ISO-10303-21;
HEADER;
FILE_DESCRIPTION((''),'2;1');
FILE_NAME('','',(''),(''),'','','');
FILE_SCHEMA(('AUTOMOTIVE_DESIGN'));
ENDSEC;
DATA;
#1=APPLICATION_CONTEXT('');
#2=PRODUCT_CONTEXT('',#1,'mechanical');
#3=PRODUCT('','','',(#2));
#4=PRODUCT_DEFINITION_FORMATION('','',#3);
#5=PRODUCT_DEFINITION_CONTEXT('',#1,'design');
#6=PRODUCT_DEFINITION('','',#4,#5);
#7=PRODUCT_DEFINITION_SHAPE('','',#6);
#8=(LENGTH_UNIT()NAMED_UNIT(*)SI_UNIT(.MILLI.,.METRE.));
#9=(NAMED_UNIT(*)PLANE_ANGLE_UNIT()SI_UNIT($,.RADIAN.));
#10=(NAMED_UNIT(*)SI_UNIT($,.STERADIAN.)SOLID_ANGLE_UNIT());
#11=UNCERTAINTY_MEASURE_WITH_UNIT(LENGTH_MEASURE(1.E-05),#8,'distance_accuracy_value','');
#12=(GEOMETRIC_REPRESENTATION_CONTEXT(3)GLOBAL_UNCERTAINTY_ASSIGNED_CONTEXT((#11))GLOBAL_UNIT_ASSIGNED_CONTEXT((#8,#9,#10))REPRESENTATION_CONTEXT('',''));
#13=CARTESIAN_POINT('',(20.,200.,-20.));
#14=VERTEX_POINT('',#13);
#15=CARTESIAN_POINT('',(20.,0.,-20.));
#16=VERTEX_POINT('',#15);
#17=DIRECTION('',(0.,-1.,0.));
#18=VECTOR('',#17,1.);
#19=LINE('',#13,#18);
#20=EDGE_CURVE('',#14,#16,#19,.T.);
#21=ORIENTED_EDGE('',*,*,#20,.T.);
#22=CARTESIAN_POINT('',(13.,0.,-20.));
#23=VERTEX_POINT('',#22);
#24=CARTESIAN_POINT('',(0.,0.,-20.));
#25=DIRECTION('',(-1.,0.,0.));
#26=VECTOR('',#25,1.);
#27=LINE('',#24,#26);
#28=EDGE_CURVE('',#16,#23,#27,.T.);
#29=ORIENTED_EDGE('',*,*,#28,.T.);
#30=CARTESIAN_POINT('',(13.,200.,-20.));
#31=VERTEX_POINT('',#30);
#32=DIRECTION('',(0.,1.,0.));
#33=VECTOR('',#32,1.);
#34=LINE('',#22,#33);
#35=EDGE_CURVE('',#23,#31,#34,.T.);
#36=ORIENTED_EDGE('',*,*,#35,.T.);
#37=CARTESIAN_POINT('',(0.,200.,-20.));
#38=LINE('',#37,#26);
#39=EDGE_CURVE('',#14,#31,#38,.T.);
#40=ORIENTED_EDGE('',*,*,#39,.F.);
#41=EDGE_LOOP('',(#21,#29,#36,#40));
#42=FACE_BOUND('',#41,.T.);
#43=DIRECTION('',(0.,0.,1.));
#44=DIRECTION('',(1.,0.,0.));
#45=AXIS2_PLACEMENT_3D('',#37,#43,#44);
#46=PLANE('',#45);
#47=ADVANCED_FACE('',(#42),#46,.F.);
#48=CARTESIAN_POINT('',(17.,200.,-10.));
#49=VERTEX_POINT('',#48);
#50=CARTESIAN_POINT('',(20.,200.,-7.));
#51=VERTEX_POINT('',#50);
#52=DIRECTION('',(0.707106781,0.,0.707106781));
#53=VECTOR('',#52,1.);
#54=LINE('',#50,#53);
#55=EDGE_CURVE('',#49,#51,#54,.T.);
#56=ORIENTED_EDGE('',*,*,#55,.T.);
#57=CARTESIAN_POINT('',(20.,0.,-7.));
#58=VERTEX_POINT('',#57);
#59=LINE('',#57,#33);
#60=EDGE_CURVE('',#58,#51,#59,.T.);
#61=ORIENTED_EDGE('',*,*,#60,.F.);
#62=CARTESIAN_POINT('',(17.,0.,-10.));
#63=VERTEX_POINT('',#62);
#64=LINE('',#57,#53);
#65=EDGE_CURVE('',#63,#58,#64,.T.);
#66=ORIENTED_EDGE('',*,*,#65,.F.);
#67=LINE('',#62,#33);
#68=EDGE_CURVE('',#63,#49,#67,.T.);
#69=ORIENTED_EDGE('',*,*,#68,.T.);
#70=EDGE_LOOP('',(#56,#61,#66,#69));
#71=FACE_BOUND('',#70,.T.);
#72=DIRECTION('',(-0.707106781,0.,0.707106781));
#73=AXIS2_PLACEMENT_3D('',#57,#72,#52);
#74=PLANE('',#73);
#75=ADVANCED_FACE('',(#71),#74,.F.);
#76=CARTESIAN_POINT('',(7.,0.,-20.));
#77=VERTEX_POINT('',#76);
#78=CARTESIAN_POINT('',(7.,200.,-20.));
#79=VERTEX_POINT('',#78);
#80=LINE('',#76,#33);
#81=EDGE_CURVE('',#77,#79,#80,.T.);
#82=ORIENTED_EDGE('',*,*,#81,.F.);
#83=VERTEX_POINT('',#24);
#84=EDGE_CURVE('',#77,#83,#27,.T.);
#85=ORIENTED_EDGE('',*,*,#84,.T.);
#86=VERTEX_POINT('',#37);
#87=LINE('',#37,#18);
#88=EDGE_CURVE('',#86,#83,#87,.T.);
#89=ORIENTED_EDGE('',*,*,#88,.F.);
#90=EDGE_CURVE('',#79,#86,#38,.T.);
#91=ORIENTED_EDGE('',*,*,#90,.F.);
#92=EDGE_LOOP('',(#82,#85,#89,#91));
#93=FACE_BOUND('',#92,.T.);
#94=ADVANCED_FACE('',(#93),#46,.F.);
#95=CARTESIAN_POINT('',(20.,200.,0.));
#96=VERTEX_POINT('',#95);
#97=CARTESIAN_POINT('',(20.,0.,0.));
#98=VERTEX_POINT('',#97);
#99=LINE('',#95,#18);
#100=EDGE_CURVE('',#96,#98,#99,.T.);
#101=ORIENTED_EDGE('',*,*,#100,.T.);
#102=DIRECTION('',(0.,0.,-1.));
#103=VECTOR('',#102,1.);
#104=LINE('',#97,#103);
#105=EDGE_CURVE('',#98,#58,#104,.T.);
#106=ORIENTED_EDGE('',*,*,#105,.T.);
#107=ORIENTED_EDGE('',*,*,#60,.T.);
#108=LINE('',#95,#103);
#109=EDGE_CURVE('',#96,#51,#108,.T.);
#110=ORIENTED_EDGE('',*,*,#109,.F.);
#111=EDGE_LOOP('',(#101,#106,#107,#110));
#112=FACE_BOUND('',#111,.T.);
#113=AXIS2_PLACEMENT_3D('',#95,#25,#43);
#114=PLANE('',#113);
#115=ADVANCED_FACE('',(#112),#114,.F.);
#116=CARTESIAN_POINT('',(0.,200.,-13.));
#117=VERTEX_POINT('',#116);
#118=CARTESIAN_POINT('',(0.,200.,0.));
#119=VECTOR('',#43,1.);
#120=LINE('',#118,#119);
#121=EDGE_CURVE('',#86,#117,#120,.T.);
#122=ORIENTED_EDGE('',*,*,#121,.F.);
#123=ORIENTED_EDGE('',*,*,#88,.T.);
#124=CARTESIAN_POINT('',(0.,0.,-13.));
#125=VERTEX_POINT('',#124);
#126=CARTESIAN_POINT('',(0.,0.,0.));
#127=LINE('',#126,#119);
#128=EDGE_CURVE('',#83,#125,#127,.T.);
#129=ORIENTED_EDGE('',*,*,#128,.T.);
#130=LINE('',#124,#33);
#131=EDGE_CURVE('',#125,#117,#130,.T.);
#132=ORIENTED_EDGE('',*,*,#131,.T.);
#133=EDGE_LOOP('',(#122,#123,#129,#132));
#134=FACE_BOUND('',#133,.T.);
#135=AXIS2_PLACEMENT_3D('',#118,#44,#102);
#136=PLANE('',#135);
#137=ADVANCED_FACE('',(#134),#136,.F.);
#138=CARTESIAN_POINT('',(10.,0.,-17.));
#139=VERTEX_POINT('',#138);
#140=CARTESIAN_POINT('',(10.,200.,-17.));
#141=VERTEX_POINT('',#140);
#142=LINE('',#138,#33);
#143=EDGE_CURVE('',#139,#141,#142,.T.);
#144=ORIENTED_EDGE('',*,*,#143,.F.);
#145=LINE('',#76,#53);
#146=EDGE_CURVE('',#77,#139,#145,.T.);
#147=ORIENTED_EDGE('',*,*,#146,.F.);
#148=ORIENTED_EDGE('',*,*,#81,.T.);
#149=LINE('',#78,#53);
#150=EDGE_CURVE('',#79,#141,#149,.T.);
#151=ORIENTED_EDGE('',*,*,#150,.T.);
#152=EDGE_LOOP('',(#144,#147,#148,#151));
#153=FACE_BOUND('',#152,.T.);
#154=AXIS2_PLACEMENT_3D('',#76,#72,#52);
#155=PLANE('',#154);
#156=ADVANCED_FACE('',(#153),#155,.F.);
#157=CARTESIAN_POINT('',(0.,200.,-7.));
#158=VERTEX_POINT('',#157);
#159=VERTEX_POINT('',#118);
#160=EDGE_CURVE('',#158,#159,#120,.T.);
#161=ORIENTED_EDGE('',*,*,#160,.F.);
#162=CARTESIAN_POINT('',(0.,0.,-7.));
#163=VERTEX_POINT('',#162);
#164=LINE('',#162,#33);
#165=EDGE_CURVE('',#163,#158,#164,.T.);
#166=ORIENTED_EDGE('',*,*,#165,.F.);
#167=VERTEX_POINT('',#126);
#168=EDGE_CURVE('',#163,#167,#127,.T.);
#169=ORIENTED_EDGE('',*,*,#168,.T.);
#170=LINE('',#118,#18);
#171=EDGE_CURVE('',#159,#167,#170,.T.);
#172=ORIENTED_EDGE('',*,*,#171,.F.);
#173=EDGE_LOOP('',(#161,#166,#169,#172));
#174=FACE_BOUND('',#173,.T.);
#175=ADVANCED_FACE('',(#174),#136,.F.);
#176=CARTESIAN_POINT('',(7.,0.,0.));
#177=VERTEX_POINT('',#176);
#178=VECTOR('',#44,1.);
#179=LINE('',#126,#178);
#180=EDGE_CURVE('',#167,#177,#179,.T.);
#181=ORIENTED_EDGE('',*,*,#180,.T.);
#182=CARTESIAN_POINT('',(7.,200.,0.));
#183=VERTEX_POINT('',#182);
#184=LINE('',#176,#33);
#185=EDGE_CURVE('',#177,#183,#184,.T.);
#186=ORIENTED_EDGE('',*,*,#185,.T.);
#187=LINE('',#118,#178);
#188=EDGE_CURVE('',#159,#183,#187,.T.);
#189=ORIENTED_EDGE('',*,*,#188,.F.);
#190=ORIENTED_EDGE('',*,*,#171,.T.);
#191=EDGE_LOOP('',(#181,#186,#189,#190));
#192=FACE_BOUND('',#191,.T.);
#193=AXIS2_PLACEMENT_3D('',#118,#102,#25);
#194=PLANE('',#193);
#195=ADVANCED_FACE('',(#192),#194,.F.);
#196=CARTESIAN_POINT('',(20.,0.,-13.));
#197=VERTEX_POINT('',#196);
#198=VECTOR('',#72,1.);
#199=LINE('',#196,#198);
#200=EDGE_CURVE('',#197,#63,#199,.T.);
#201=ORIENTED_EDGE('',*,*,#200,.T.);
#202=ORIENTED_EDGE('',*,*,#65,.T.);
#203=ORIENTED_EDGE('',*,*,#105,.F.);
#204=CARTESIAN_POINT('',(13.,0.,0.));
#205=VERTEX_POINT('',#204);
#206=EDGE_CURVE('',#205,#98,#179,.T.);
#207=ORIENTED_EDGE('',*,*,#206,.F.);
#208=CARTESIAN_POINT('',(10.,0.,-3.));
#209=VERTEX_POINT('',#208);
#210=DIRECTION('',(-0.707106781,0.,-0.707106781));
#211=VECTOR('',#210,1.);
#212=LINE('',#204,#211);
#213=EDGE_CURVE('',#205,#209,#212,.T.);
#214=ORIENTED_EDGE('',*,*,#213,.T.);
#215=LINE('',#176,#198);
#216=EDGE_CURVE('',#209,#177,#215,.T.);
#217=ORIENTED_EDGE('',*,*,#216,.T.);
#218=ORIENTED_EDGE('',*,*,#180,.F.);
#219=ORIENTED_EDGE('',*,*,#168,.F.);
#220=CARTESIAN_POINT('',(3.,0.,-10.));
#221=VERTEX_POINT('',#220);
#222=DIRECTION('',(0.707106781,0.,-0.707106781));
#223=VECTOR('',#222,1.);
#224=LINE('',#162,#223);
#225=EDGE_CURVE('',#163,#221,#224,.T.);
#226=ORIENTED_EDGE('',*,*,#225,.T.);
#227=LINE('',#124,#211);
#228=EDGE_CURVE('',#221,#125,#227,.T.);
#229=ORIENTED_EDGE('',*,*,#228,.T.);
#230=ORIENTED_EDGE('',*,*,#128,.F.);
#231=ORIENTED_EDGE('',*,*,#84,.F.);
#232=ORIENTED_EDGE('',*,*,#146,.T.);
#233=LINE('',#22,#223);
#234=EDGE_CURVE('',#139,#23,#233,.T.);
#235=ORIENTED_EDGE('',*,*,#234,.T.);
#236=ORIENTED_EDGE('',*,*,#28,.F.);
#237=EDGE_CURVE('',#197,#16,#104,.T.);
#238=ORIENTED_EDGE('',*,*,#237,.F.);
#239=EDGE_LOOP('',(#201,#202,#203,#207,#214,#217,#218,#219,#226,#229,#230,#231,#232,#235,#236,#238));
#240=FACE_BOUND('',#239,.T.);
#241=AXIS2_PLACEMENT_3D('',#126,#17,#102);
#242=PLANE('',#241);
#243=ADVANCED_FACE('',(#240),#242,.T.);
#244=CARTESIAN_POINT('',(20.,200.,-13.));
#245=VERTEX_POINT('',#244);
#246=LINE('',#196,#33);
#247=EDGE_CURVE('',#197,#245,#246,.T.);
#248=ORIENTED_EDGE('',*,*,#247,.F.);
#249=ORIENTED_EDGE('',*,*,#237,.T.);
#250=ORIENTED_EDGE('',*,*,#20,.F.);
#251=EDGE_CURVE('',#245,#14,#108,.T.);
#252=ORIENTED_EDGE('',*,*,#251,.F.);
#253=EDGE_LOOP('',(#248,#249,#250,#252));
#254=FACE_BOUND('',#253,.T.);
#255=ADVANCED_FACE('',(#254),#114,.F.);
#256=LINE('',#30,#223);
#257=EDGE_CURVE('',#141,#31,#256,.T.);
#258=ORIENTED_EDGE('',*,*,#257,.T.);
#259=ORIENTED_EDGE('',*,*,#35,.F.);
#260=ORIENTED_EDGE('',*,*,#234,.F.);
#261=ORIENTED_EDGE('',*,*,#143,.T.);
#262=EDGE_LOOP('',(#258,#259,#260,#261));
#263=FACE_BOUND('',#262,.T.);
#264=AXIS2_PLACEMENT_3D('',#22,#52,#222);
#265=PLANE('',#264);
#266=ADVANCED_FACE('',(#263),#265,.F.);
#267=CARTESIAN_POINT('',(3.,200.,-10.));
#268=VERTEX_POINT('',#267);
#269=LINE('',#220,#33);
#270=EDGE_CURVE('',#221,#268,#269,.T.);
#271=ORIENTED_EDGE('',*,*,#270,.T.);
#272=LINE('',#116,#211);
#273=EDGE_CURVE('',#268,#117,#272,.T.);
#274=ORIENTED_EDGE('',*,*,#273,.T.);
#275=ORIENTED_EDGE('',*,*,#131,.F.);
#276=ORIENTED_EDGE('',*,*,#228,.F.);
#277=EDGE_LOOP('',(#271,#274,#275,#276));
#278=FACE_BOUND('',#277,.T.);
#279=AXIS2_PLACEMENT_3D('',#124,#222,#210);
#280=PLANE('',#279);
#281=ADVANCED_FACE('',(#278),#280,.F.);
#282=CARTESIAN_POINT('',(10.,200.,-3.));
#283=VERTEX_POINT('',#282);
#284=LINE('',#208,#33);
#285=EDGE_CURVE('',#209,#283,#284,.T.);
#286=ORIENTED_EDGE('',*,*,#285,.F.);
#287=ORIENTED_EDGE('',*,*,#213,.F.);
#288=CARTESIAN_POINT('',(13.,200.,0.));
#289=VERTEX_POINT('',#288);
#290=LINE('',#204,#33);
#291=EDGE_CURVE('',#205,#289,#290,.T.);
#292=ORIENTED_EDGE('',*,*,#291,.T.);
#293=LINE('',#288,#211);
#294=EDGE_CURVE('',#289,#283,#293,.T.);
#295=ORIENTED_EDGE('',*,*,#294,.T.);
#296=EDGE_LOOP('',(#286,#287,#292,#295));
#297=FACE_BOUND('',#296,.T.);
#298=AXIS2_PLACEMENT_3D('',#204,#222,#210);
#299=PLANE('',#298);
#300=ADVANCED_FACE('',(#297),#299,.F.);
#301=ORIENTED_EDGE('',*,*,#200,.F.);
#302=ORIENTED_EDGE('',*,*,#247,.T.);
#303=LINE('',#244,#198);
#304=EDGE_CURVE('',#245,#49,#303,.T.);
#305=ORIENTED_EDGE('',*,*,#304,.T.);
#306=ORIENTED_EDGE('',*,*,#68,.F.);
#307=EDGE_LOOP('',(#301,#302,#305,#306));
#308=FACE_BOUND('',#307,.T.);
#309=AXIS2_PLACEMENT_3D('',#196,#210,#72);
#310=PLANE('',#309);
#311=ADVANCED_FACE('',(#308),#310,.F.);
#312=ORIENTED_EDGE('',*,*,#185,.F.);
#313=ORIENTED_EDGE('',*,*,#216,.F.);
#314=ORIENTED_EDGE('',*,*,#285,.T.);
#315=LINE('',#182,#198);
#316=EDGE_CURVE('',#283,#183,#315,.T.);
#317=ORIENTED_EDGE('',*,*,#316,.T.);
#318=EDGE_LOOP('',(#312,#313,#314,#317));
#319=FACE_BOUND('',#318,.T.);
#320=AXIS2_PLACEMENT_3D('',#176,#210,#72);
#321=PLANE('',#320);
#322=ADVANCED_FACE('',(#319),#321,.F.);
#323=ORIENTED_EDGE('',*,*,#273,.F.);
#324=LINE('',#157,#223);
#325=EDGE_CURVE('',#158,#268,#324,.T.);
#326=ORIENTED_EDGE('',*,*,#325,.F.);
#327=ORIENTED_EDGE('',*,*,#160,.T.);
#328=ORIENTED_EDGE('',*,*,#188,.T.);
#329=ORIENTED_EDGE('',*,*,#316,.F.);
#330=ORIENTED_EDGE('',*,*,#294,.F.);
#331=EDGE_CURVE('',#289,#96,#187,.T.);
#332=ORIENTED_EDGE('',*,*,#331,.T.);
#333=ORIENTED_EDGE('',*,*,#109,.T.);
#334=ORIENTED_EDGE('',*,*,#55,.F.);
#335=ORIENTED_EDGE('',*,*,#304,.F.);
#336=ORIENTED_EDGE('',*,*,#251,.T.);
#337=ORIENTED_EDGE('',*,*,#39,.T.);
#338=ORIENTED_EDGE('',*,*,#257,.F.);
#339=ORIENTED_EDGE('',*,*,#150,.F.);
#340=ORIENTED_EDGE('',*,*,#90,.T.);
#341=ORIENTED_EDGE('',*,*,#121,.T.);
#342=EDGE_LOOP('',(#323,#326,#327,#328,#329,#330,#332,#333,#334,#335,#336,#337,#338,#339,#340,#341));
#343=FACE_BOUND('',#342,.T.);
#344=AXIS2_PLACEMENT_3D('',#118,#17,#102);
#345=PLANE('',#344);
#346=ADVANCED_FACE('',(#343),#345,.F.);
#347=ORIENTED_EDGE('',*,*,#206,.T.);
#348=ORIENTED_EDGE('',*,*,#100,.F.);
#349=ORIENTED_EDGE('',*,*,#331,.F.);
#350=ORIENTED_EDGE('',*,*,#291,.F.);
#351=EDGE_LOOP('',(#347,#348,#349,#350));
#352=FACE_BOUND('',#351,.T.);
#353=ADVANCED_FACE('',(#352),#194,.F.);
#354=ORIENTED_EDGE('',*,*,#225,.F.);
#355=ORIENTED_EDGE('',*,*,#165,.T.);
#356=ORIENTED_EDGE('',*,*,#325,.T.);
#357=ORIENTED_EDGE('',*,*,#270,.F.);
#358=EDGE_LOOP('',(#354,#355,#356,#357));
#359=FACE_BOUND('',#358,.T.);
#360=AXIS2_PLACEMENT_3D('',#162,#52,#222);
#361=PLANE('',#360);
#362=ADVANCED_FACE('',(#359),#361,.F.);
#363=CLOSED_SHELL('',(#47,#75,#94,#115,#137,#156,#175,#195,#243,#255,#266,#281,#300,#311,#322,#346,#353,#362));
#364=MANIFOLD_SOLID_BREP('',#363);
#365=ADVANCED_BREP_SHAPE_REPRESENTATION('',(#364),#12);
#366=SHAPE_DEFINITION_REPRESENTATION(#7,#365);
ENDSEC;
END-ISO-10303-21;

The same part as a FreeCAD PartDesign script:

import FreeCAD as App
import Part
import Sketcher

V = App.Vector


def add_polygon(sketch, points):
    """Adds a closed chain of lines whose ends are joined by coincident constraints."""
    first, n = sketch.GeometryCount, len(points)
    for a, b in zip(points, points[1:] + points[:1]):
        sketch.addGeometry(Part.LineSegment(App.Vector(*a, 0), App.Vector(*b, 0)), False)
    for i in range(n):
        sketch.addConstraint(Sketcher.Constraint("Coincident", first + i, 2, first + (i + 1) % n, 1))

doc = App.newDocument("Part")
body = doc.addObject("PartDesign::Body", "Body")

# Sketch on XZ plane
sketch1 = body.newObject("Sketcher::SketchObject", "Sketch")
sketch1.AttachmentSupport = (doc.getObject("XZ_Plane"), [""])
sketch1.MapMode = "FlatFace"
add_polygon(sketch1, [(0, -20), (0, 0), (20, 0), (20, -20)])  # lines 0-3
sketch1.addConstraint([
    Sketcher.Constraint("Vertical", 0),
    Sketcher.Constraint("Horizontal", 1),
    Sketcher.Constraint("Vertical", 2),
    Sketcher.Constraint("Horizontal", 3),
    Sketcher.Constraint("Coincident", 0, 2, -1, 1),
    Sketcher.Constraint("Equal", 3, 0),
    Sketcher.Constraint("DistanceX", 1, 1, 1, 2, 20.0),
])
pad1 = body.newObject("PartDesign::Pad", "Pad")
pad1.Profile = sketch1
pad1.Length = 200
pad1.Reversed = True

# Sketch on XZ plane
sketch2 = body.newObject("Sketcher::SketchObject", "Sketch001")
sketch2.AttachmentSupport = (doc.getObject("XZ_Plane"), [""])
sketch2.MapMode = "FlatFace"
sketch2.AttachmentOffset = App.Placement(V(0, 0, -200), App.Rotation())
add_polygon(sketch2, [(7, -20), (10, -17), (13, -20)])  # lines 0-2
add_polygon(sketch2, [(20, -13), (17, -10), (20, -7)])  # lines 3-5
add_polygon(sketch2, [(0, -13), (0, -7), (3, -10)])  # lines 6-8
add_polygon(sketch2, [(7, 0), (13, 0), (10, -3)])  # lines 9-11
sketch2.addConstraint([
    Sketcher.Constraint("Horizontal", 2),
    Sketcher.Constraint("Vertical", 5),
    Sketcher.Constraint("Vertical", 6),
    Sketcher.Constraint("Horizontal", 9),
    Sketcher.Constraint("PointOnObject", 6, 2, -2),
    Sketcher.Constraint("PointOnObject", 9, 2, -1),
    Sketcher.Constraint("Perpendicular", 0, 1),
    Sketcher.Constraint("Parallel", 1, 3),
    Sketcher.Constraint("Perpendicular", 3, 4),
    Sketcher.Constraint("Perpendicular", 4, 7),
    Sketcher.Constraint("Perpendicular", 7, 8),
    Sketcher.Constraint("Parallel", 8, 10),
    Sketcher.Constraint("Perpendicular", 10, 11),
    Sketcher.Constraint("Horizontal", 4, 2, 6, 2),
    Sketcher.Constraint("Horizontal", 3, 2, 7, 2),
    Sketcher.Constraint("Horizontal", 5, 2, 8, 2),
    Sketcher.Constraint("Vertical", 1, 2, 9, 2),
    Sketcher.Constraint("Vertical", 0, 2, 10, 2),
    Sketcher.Constraint("Equal", 9, 5),
    Sketcher.Constraint("DistanceX", 2, 2, 2, 1, 6.0),
    Sketcher.Constraint("DistanceX", -1, 1, 0, 2, 10.0),
    Sketcher.Constraint("DistanceY", 0, 2, -1, 1, 17.0),
    Sketcher.Constraint("DistanceX", -1, 1, 3, 2, 17.0),
    Sketcher.Constraint("DistanceY", 3, 2, -1, 1, 10.0),
])
pocket1 = body.newObject("PartDesign::Pocket", "Pocket")
pocket1.Profile = sketch2
pocket1.Type = "ThroughAll"
pocket1.Reversed = True

doc.recompute()
